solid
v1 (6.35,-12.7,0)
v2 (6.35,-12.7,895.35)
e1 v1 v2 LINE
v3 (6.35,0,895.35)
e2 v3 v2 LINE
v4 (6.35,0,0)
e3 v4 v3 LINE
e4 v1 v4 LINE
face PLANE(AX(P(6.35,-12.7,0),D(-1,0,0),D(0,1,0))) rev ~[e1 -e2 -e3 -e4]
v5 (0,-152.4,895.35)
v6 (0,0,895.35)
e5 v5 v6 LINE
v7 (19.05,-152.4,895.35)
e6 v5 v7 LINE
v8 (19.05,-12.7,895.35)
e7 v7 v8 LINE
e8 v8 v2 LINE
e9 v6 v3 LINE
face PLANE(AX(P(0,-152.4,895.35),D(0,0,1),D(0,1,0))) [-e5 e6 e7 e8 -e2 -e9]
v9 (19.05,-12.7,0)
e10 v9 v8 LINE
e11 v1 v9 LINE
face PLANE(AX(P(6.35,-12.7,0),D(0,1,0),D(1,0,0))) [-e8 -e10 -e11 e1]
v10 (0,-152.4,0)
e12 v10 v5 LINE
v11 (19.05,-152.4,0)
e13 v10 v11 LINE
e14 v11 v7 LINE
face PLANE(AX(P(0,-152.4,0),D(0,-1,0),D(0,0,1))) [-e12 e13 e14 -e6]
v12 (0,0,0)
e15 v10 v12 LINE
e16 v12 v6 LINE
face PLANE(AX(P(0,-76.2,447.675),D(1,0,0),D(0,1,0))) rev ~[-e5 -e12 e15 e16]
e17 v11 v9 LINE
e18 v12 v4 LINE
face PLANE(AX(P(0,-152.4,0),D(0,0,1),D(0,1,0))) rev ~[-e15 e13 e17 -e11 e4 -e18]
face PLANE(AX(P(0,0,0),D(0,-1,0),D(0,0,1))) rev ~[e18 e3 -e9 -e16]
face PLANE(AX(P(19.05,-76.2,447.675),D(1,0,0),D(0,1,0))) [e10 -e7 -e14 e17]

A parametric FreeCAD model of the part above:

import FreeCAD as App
import Part
import Sketcher
Q = App.Units.Quantity

doc = App.newDocument("Part")
body = doc.addObject("PartDesign::Body", "Body")

sketch1 = body.newObject("Sketcher::SketchObject", "Sketch")
sketch1.AttachmentSupport = (doc.getObject("YZ_Plane"), [""])
sketch1.MapMode = "FlatFace"
sketch1.addGeometry([
    Part.LineSegment(App.Vector(-152, 895, 0), App.Vector(-152, 0, 0)),
    Part.LineSegment(App.Vector(-152, 0, 0), App.Vector(0, 0, 0)),
    Part.LineSegment(App.Vector(0, 0, 0), App.Vector(0, 895, 0)),
    Part.LineSegment(App.Vector(0, 895, 0), App.Vector(-152, 895, 0)),
], False)
sketch1.addConstraint([
    Sketcher.Constraint("Coincident", 0, 2, 1, 1),
    Sketcher.Constraint("Coincident", 1, 2, 2, 1),
    Sketcher.Constraint("Coincident", 2, 2, 3, 1),
    Sketcher.Constraint("Coincident", 3, 2, 0, 1),
    Sketcher.Constraint("Vertical", 0),
    Sketcher.Constraint("Horizontal", 1),
    Sketcher.Constraint("Vertical", 2),
    Sketcher.Constraint("Horizontal", 3),
    Sketcher.Constraint("Coincident", 1, 2, -1, 1),
    Sketcher.Constraint("DistanceX", 1, 1, 1, 2, Q("6 in")),
    Sketcher.Constraint("DistanceY", 0, 2, 0, 1, Q("35.25 in")),
])
pad1 = body.newObject("PartDesign::Pad", "Pad")
pad1.Profile = sketch1
pad1.Length = Q("0.75 in")

sketch2 = body.newObject("Sketcher::SketchObject", "Sketch001")
sketch2.AttachmentSupport = (doc.getObject("XY_Plane"), [""])
sketch2.MapMode = "FlatFace"
sketch2.addGeometry([
    Part.LineSegment(App.Vector(6, 0, 0), App.Vector(6, -13, 0)),
    Part.LineSegment(App.Vector(6, -13, 0), App.Vector(19, -13, 0)),
    Part.LineSegment(App.Vector(19, -13, 0), App.Vector(19, 0, 0)),
    Part.LineSegment(App.Vector(19, 0, 0), App.Vector(6, 0, 0)),
], False)
sketch2.addConstraint([
    Sketcher.Constraint("Coincident", 0, 2, 1, 1),
    Sketcher.Constraint("Coincident", 1, 2, 2, 1),
    Sketcher.Constraint("Coincident", 2, 2, 3, 1),
    Sketcher.Constraint("Coincident", 3, 2, 0, 1),
    Sketcher.Constraint("Vertical", 0),
    Sketcher.Constraint("Horizontal", 1),
    Sketcher.Constraint("Vertical", 2),
    Sketcher.Constraint("Horizontal", 3),
    Sketcher.Constraint("PointOnObject", 2, 2, -1),
    Sketcher.Constraint("Equal", 3, 0),
    Sketcher.Constraint("DistanceX", 1, 1, 1, 2, Q("0.5 in")),
    Sketcher.Constraint("DistanceX", -1, 1, 0, 2, Q("0.25 in")),
])
pocket1 = body.newObject("PartDesign::Pocket", "Pocket")
pocket1.Profile = sketch2
pocket1.Type = "ThroughAll"
pocket1.Reversed = True

doc.recompute()
